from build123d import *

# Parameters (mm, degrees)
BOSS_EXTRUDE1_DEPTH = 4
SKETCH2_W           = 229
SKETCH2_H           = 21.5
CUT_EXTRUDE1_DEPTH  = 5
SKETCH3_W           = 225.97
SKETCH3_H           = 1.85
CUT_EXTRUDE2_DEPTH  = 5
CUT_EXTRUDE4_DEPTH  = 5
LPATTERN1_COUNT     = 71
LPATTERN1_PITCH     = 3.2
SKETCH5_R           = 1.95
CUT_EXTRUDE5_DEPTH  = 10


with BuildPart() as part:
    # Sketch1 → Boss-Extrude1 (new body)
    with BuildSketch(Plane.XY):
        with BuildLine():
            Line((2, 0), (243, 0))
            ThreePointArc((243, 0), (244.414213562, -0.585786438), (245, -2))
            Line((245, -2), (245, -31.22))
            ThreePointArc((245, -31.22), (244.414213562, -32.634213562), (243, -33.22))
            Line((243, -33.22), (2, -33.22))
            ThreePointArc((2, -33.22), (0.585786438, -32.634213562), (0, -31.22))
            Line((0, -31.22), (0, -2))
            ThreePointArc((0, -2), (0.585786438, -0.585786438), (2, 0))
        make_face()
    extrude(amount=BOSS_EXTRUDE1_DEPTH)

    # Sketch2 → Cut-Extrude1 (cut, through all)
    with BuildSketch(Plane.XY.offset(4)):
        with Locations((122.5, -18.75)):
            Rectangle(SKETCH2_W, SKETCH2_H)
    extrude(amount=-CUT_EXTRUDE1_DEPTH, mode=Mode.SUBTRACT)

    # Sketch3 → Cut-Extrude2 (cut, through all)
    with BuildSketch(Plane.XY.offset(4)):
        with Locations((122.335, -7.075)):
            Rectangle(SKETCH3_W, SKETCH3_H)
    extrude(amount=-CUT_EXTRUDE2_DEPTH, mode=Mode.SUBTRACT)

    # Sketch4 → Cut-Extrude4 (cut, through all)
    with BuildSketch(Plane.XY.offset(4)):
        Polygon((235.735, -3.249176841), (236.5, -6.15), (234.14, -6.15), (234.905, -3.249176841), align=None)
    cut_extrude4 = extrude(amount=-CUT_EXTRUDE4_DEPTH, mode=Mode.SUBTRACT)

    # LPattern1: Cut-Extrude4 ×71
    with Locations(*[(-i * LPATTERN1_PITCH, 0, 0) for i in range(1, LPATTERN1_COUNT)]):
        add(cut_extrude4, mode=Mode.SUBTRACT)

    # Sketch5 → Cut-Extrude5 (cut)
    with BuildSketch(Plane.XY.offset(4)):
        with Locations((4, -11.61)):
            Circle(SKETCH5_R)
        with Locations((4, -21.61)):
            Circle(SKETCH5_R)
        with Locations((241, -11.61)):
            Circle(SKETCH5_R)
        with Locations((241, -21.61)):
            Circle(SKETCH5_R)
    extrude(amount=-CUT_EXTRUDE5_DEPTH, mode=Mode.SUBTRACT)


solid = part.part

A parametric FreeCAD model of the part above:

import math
import FreeCAD as App
import Part
import Sketcher
Q = App.Units.Quantity


def add_polygon(sketch, points):
    """Adds a closed chain of lines whose ends are joined by coincident constraints."""
    first, n = sketch.GeometryCount, len(points)
    for a, b in zip(points, points[1:] + points[:1]):
        sketch.addGeometry(Part.LineSegment(App.Vector(*a, 0), App.Vector(*b, 0)), False)
    for i in range(n):
        sketch.addConstraint(Sketcher.Constraint("Coincident", first + i, 2, first + (i + 1) % n, 1))

doc = App.newDocument("Part")
body = doc.addObject("PartDesign::Body", "Body")

sketch1 = body.newObject("Sketcher::SketchObject", "Sketch")
sketch1.AttachmentSupport = (doc.getObject("XY_Plane"), [""])
sketch1.MapMode = "FlatFace"
sketch1.addGeometry([
    Part.LineSegment(App.Vector(243, 0, 0), App.Vector(2, 0, 0)),
    Part.ArcOfCircle(Part.Circle(App.Vector(2, -2, 0), App.Vector(0, 0, 1), 2), math.radians(90), math.radians(180)),
    Part.LineSegment(App.Vector(0, -2, 0), App.Vector(0, -31.2, 0)),
    Part.ArcOfCircle(Part.Circle(App.Vector(2, -31.2, 0), App.Vector(0, 0, 1), 2), math.radians(-180), math.radians(-90)),
    Part.LineSegment(App.Vector(2, -33.2, 0), App.Vector(243, -33.2, 0)),
    Part.ArcOfCircle(Part.Circle(App.Vector(243, -31.2, 0), App.Vector(0, 0, 1), 2), math.radians(-90), math.radians(0)),
    Part.LineSegment(App.Vector(245, -31.2, 0), App.Vector(245, -2, 0)),
    Part.ArcOfCircle(Part.Circle(App.Vector(243, -2, 0), App.Vector(0, 0, 1), 2), math.radians(0), math.radians(90)),
], False)
sketch1.addConstraint([
    Sketcher.Constraint("Tangent", 0, 2, 1, 1),
    Sketcher.Constraint("Tangent", 1, 2, 2, 1),
    Sketcher.Constraint("Tangent", 2, 2, 3, 1),
    Sketcher.Constraint("Tangent", 3, 2, 4, 1),
    Sketcher.Constraint("Tangent", 4, 2, 5, 1),
    Sketcher.Constraint("Tangent", 5, 2, 6, 1),
    Sketcher.Constraint("Tangent", 6, 2, 7, 1),
    Sketcher.Constraint("Tangent", 7, 2, 0, 1),
    Sketcher.Constraint("Horizontal", 0),
    Sketcher.Constraint("Vertical", 2),
    Sketcher.Constraint("Horizontal", 4),
    Sketcher.Constraint("Vertical", 6),
    Sketcher.Constraint("Equal", 1, 3),
    Sketcher.Constraint("Equal", 3, 5),
    Sketcher.Constraint("Equal", 5, 7),
    Sketcher.Constraint("PointOnObject", 0, 2, -1),
    Sketcher.Constraint("PointOnObject", 1, 2, -2),
    Sketcher.Constraint("Radius", 1, Q("2 mm")),
    Sketcher.Constraint("DistanceX", 0, 2, 0, 1, Q("241 mm")),
    Sketcher.Constraint("DistanceY", 2, 2, 2, 1, Q("29.22 mm")),
])
pad1 = body.newObject("PartDesign::Pad", "Pad")
pad1.Profile = sketch1
pad1.Length = 4

sketch2 = body.newObject("Sketcher::SketchObject", "Sketch001")
sketch2.AttachmentSupport = (doc.getObject("XY_Plane"), [""])
sketch2.MapMode = "FlatFace"
sketch2.AttachmentOffset = App.Placement(App.Vector(0, 0, 4), App.Rotation())
add_polygon(sketch2, [(8, -8), (8, -30), (237, -30), (237, -8)])
sketch2.addConstraint([
    Sketcher.Constraint("Vertical", 0),
    Sketcher.Constraint("Horizontal", 1),
    Sketcher.Constraint("Vertical", 2),
    Sketcher.Constraint("Horizontal", 3),
    Sketcher.Constraint("DistanceX", 1, 1, 1, 2, Q("229 mm")),
    Sketcher.Constraint("DistanceY", 0, 2, 0, 1, Q("21.5 mm")),
    Sketcher.Constraint("DistanceX", -1, 1, 0, 2, Q("8 mm")),
    Sketcher.Constraint("DistanceY", 2, 2, -1, 1, Q("8 mm")),
])
pocket1 = body.newObject("PartDesign::Pocket", "Pocket")
pocket1.Profile = sketch2
pocket1.Type = "ThroughAll"

sketch3 = body.newObject("Sketcher::SketchObject", "Sketch002")
sketch3.AttachmentSupport = (doc.getObject("XY_Plane"), [""])
sketch3.MapMode = "FlatFace"
sketch3.AttachmentOffset = App.Placement(App.Vector(0, 0, 4), App.Rotation())
add_polygon(sketch3, [(9.3, -6.2), (9.3, -8), (235.3, -8), (235.3, -6.2)])
sketch3.addConstraint([
    Sketcher.Constraint("Vertical", 0),
    Sketcher.Constraint("Horizontal", 1),
    Sketcher.Constraint("Vertical", 2),
    Sketcher.Constraint("Horizontal", 3),
    Sketcher.Constraint("DistanceY", 0, 2, -1, 1, Q("8 mm")),
    Sketcher.Constraint("DistanceX", 1, 1, 1, 2, Q("225.97 mm")),
    Sketcher.Constraint("DistanceY", 0, 2, 0, 1, Q("1.85 mm")),
    Sketcher.Constraint("DistanceX", -1, 1, 0, 2, Q("9.35 mm")),
])
pocket2 = body.newObject("PartDesign::Pocket", "Pocket001")
pocket2.Profile = sketch3
pocket2.Type = "ThroughAll"

sketch4 = body.newObject("Sketcher::SketchObject", "Sketch003")
sketch4.AttachmentSupport = (doc.getObject("XY_Plane"), [""])
sketch4.MapMode = "FlatFace"
sketch4.AttachmentOffset = App.Placement(App.Vector(0, 0, 4), App.Rotation())
add_polygon(sketch4, [(236.5, -6.2), (235.7, -3.2), (234.9, -3.2), (234.1, -6.2)])
sketch4.addConstraint([
    Sketcher.Constraint("Horizontal", 1),
    Sketcher.Constraint("Horizontal", 3),
    Sketcher.Constraint("Equal", 0, 2),
    Sketcher.Constraint("Distance", 0, Q("3 mm")),
    Sketcher.Constraint("DistanceX", 1, 2, 1, 1, Q("0.83 mm")),
    Sketcher.Constraint("DistanceX", 3, 1, 3, 2, Q("2.36 mm")),
    Sketcher.Constraint("DistanceX", -1, 1, 3, 2, Q("236.5 mm")),
    Sketcher.Constraint("DistanceY", 2, 2, -1, 1, Q("6.15 mm")),
])
pocket3 = body.newObject("PartDesign::Pocket", "Pocket002")
pocket3.Profile = sketch4
pocket3.Type = "ThroughAll"
doc.recompute()

linearpattern = body.newObject("PartDesign::LinearPattern", "LinearPattern")
linearpattern.Originals = [pocket3]
linearpattern.Direction = (doc.getObject("X_Axis"), [""])
linearpattern.Mode = "offset"
linearpattern.Offset = 3.2
linearpattern.Occurrences = 71
linearpattern.Reversed = True
body.Tip = linearpattern

sketch5 = body.newObject("Sketcher::SketchObject", "Sketch004")
sketch5.AttachmentSupport = (doc.getObject("XY_Plane"), [""])
sketch5.MapMode = "FlatFace"
sketch5.AttachmentOffset = App.Placement(App.Vector(0, 0, 4), App.Rotation())
sketch5.addGeometry([
    Part.Circle(App.Vector(4, -11.6, 0), App.Vector(0, 0, 1), 1.9),
    Part.Circle(App.Vector(4, -21.6, 0), App.Vector(0, 0, 1), 1.9),
    Part.Circle(App.Vector(241, -11.6, 0), App.Vector(0, 0, 1), 1.9),
    Part.Circle(App.Vector(241, -21.6, 0), App.Vector(0, 0, 1), 1.9),
], False)
sketch5.addConstraint([
    Sketcher.Constraint("Equal", 0, 1),
    Sketcher.Constraint("Equal", 1, 2),
    Sketcher.Constraint("Equal", 2, 3),
    Sketcher.Constraint("Horizontal", 0, 3, 2, 3),
    Sketcher.Constraint("Horizontal", 1, 3, 3, 3),
    Sketcher.Constraint("Vertical", 0, 3, 1, 3),
    Sketcher.Constraint("Vertical", 2, 3, 3, 3),
    Sketcher.Constraint("Diameter", 0, Q("3.9 mm")),
    Sketcher.Constraint("DistanceX", -1, 1, 0, 3, Q("4 mm")),
    Sketcher.Constraint("DistanceX", -1, 1, 2, 3, Q("241 mm")),
    Sketcher.Constraint("DistanceY", 1, 3, 0, 3, Q("10 mm")),
    Sketcher.Constraint("DistanceY", 0, 3, -1, 1, Q("11.61 mm")),
])
pocket4 = body.newObject("PartDesign::Pocket", "Pocket003")
pocket4.Profile = sketch5
pocket4.Length = 10

doc.recompute()
